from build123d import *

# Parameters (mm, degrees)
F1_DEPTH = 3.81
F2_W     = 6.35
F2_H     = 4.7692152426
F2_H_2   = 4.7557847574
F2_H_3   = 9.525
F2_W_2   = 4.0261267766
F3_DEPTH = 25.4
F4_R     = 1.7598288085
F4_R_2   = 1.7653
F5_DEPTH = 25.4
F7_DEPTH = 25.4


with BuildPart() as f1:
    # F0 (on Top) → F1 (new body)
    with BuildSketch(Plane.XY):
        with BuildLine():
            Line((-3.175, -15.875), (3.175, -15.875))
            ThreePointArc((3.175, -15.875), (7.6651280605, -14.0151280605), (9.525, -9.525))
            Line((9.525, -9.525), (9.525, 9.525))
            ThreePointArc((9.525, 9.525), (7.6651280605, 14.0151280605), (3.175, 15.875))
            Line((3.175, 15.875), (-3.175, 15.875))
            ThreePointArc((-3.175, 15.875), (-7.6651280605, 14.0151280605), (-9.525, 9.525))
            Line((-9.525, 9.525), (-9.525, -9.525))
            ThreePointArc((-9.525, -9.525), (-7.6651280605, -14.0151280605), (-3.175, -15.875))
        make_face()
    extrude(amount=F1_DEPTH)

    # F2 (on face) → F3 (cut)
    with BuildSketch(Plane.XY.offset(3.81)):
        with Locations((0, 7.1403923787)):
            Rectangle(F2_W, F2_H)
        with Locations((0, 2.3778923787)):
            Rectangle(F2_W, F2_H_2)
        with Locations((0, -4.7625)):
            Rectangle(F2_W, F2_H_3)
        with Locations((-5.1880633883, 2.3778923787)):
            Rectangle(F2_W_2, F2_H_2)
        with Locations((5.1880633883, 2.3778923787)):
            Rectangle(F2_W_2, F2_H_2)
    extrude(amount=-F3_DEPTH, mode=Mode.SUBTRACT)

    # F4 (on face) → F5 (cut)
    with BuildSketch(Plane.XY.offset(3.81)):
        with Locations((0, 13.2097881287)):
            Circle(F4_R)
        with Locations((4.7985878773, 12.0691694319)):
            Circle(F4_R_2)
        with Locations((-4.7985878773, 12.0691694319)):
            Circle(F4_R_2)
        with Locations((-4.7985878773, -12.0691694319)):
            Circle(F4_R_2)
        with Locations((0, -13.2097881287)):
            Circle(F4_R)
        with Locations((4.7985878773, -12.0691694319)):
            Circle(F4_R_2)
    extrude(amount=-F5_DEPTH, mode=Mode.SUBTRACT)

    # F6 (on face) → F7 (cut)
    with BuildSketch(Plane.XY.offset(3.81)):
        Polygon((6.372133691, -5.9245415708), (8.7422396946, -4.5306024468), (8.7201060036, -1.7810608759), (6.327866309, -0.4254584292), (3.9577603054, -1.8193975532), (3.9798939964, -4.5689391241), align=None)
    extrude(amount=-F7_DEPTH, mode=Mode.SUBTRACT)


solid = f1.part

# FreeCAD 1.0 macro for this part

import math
import FreeCAD as App
import Part
import Sketcher

V = App.Vector
Q = App.Units.Quantity


def add_polygon(sketch, points):
    """Adds a closed chain of lines whose ends are joined by coincident constraints."""
    first, n = sketch.GeometryCount, len(points)
    for a, b in zip(points, points[1:] + points[:1]):
        sketch.addGeometry(Part.LineSegment(App.Vector(*a, 0), App.Vector(*b, 0)), False)
    for i in range(n):
        sketch.addConstraint(Sketcher.Constraint("Coincident", first + i, 2, first + (i + 1) % n, 1))

doc = App.newDocument("Part")
body = doc.addObject("PartDesign::Body", "Body")

sketch1 = body.newObject("Sketcher::SketchObject", "Sketch")
sketch1.AttachmentSupport = (doc.getObject("XY_Plane"), [""])
sketch1.MapMode = "FlatFace"
sketch1.addGeometry([
    Part.LineSegment(V(-3, -16, 0), V(3, -16, 0)),
    Part.ArcOfCircle(Part.Circle(V(3, -10, 0), V(0, 0, 1), 6), math.radians(-90), math.radians(0)),
    Part.LineSegment(V(10, -10, 0), V(10, 10, 0)),
    Part.ArcOfCircle(Part.Circle(V(3, 10, 0), V(0, 0, 1), 6), math.radians(0), math.radians(90)),
    Part.LineSegment(V(3, 16, 0), V(-3, 16, 0)),
    Part.ArcOfCircle(Part.Circle(V(-3, 10, 0), V(0, 0, 1), 6), math.radians(90), math.radians(180)),
    Part.LineSegment(V(-10, 10, 0), V(-10, -10, 0)),
    Part.ArcOfCircle(Part.Circle(V(-3, -10, 0), V(0, 0, 1), 6), math.radians(180), math.radians(270)),
], False)
sketch1.addConstraint([
    Sketcher.Constraint("Tangent", 0, 2, 1, 1),
    Sketcher.Constraint("Tangent", 1, 2, 2, 1),
    Sketcher.Constraint("Tangent", 2, 2, 3, 1),
    Sketcher.Constraint("Tangent", 3, 2, 4, 1),
    Sketcher.Constraint("Tangent", 4, 2, 5, 1),
    Sketcher.Constraint("Tangent", 5, 2, 6, 1),
    Sketcher.Constraint("Tangent", 6, 2, 7, 1),
    Sketcher.Constraint("Tangent", 7, 2, 0, 1),
    Sketcher.Constraint("Horizontal", 0),
    Sketcher.Constraint("Vertical", 2),
    Sketcher.Constraint("Horizontal", 4),
    Sketcher.Constraint("Vertical", 6),
    Sketcher.Constraint("Equal", 1, 3),
    Sketcher.Constraint("Equal", 3, 5),
    Sketcher.Constraint("Equal", 5, 7),
    Sketcher.Constraint("Symmetric", 1, 3, 5, 3, -1, 1),
    Sketcher.Constraint("Radius", 1, Q("0.25 in")),
    Sketcher.Constraint("DistanceY", 0, 2, 3, 3, Q("1 in")),
    Sketcher.Constraint("DistanceX", 0, 1, 0, 2, Q("0.25 in")),
])
pad1 = body.newObject("PartDesign::Pad", "Pad")
pad1.Profile = sketch1
pad1.Length = Q("0.15 in")

sketch2 = body.newObject("Sketcher::SketchObject", "Sketch001")
sketch2.AttachmentSupport = (doc.getObject("XY_Plane"), [""])
sketch2.MapMode = "FlatFace"
sketch2.AttachmentOffset = App.Placement(V(0, 0, 0.15 * 25.4), App.Rotation())
add_polygon(sketch2, [(3.2, 9.5), (-3.2, 9.5), (-3.2, 4.8), (-7.2, 4.8), (-7.2, 0), (-3.2, 0), (-3.2, -9.5), (3.2, -9.5), (3.2, 0), (7.2, 0), (7.2, 4.8), (3.2, 4.8)])
sketch2.addConstraint([
    Sketcher.Constraint("Horizontal", 0),
    Sketcher.Constraint("Vertical", 1),
    Sketcher.Constraint("Horizontal", 2),
    Sketcher.Constraint("Vertical", 3),
    Sketcher.Constraint("Horizontal", 4),
    Sketcher.Constraint("Vertical", 5),
    Sketcher.Constraint("Horizontal", 6),
    Sketcher.Constraint("Vertical", 7),
    Sketcher.Constraint("Horizontal", 8),
    Sketcher.Constraint("Vertical", 9),
    Sketcher.Constraint("Horizontal", 10),
    Sketcher.Constraint("Vertical", 11),
    Sketcher.Constraint("Symmetric", 0, 2, 6, 2, -1, 1),
    Sketcher.Constraint("Symmetric", 4, 2, 7, 2, -1, 1),
    Sketcher.Constraint("Symmetric", 3, 2, 8, 2, -2),
    Sketcher.Constraint("Symmetric", 1, 2, 10, 2, -2),
    Sketcher.Constraint("DistanceX", 0, 2, 0, 1, Q("0.25 in")),
    Sketcher.Constraint("DistanceY", 5, 2, 5, 1, Q("0.375 in")),
    Sketcher.Constraint("DistanceX", 2, 2, 2, 1, 4.026127),
    Sketcher.Constraint("DistanceY", 1, 2, 1, 1, 4.769215),
])
pocket1 = body.newObject("PartDesign::Pocket", "Pocket")
pocket1.Profile = sketch2
pocket1.Length = Q("1 in")

sketch3 = body.newObject("Sketcher::SketchObject", "Sketch002")
sketch3.AttachmentSupport = (doc.getObject("XY_Plane"), [""])
sketch3.MapMode = "FlatFace"
sketch3.AttachmentOffset = App.Placement(V(0, 0, 0.15 * 25.4), App.Rotation())
sketch3.addGeometry([
    Part.Circle(V(0, 13.2, 0), V(0, 0, 1), 1.8),
    Part.Circle(V(4.8, 12.1, 0), V(0, 0, 1), 1.8),
    Part.Circle(V(-4.8, 12.1, 0), V(0, 0, 1), 1.8),
    Part.Circle(V(-4.8, -12.1, 0), V(0, 0, 1), 1.8),
    Part.Circle(V(0, -13.2, 0), V(0, 0, 1), 1.8),
    Part.Circle(V(4.8, -12.1, 0), V(0, 0, 1), 1.8),
], False)
sketch3.addConstraint([
    Sketcher.Constraint("Equal", 1, 2),
    Sketcher.Constraint("Equal", 2, 3),
    Sketcher.Constraint("Equal", 0, 4),
    Sketcher.Constraint("Equal", 3, 5),
    Sketcher.Constraint("Symmetric", 1, 3, 3, 3, -1, 1),
    Sketcher.Constraint("Symmetric", 0, 3, 4, 3, -1, 1),
    Sketcher.Constraint("Symmetric", 2, 3, 5, 3, -1, 1),
    Sketcher.Constraint("Symmetric", 1, 3, 2, 3, -2),
    Sketcher.Constraint("PointOnObject", 0, 3, -2),
    Sketcher.Constraint("Diameter", 1, Q("0.139 in")),
    Sketcher.Constraint("Diameter", 0, 3.519658),
    Sketcher.Constraint("DistanceY", -1, 1, 0, 3, 13.209788),
    Sketcher.Constraint("DistanceY", -1, 1, 1, 3, 12.069169),
    Sketcher.Constraint("DistanceX", -1, 1, 1, 3, 4.798588),
])
pocket2 = body.newObject("PartDesign::Pocket", "Pocket001")
pocket2.Profile = sketch3
pocket2.Length = Q("1 in")

sketch4 = body.newObject("Sketcher::SketchObject", "Sketch003")
sketch4.AttachmentSupport = (doc.getObject("XY_Plane"), [""])
sketch4.MapMode = "FlatFace"
sketch4.AttachmentOffset = App.Placement(V(0, 0, 0.15 * 25.4), App.Rotation())
add_polygon(sketch4, [(6.4, -5.9), (8.7, -4.5), (8.7, -1.8), (6.3, -0.4), (4, -1.8), (4, -4.6)])
sketch4.addConstraint([
    Sketcher.Constraint("Parallel", 0, 3),
    Sketcher.Constraint("Parallel", 1, 4),
    Sketcher.Constraint("Parallel", 2, 5),
    Sketcher.Constraint("Equal", 0, 1),
    Sketcher.Constraint("Equal", 1, 2),
    Sketcher.Constraint("Equal", 2, 3),
    Sketcher.Constraint("Distance", 0, 2.749631),
    Sketcher.Constraint("DistanceX", -1, 1, 0, 2, 8.74224),
    Sketcher.Constraint("DistanceY", 1, 2, -1, 1, 1.781061),
    Sketcher.Constraint("DistanceY", 2, 2, -1, 1, 0.425458),
    Sketcher.Constraint("DistanceX", -1, 1, 3, 2, 3.95776),
    Sketcher.Constraint("DistanceY", 4, 2, -1, 1, 4.568939),
])
pocket3 = body.newObject("PartDesign::Pocket", "Pocket002")
pocket3.Profile = sketch4
pocket3.Length = Q("1 in")

doc.recompute()
